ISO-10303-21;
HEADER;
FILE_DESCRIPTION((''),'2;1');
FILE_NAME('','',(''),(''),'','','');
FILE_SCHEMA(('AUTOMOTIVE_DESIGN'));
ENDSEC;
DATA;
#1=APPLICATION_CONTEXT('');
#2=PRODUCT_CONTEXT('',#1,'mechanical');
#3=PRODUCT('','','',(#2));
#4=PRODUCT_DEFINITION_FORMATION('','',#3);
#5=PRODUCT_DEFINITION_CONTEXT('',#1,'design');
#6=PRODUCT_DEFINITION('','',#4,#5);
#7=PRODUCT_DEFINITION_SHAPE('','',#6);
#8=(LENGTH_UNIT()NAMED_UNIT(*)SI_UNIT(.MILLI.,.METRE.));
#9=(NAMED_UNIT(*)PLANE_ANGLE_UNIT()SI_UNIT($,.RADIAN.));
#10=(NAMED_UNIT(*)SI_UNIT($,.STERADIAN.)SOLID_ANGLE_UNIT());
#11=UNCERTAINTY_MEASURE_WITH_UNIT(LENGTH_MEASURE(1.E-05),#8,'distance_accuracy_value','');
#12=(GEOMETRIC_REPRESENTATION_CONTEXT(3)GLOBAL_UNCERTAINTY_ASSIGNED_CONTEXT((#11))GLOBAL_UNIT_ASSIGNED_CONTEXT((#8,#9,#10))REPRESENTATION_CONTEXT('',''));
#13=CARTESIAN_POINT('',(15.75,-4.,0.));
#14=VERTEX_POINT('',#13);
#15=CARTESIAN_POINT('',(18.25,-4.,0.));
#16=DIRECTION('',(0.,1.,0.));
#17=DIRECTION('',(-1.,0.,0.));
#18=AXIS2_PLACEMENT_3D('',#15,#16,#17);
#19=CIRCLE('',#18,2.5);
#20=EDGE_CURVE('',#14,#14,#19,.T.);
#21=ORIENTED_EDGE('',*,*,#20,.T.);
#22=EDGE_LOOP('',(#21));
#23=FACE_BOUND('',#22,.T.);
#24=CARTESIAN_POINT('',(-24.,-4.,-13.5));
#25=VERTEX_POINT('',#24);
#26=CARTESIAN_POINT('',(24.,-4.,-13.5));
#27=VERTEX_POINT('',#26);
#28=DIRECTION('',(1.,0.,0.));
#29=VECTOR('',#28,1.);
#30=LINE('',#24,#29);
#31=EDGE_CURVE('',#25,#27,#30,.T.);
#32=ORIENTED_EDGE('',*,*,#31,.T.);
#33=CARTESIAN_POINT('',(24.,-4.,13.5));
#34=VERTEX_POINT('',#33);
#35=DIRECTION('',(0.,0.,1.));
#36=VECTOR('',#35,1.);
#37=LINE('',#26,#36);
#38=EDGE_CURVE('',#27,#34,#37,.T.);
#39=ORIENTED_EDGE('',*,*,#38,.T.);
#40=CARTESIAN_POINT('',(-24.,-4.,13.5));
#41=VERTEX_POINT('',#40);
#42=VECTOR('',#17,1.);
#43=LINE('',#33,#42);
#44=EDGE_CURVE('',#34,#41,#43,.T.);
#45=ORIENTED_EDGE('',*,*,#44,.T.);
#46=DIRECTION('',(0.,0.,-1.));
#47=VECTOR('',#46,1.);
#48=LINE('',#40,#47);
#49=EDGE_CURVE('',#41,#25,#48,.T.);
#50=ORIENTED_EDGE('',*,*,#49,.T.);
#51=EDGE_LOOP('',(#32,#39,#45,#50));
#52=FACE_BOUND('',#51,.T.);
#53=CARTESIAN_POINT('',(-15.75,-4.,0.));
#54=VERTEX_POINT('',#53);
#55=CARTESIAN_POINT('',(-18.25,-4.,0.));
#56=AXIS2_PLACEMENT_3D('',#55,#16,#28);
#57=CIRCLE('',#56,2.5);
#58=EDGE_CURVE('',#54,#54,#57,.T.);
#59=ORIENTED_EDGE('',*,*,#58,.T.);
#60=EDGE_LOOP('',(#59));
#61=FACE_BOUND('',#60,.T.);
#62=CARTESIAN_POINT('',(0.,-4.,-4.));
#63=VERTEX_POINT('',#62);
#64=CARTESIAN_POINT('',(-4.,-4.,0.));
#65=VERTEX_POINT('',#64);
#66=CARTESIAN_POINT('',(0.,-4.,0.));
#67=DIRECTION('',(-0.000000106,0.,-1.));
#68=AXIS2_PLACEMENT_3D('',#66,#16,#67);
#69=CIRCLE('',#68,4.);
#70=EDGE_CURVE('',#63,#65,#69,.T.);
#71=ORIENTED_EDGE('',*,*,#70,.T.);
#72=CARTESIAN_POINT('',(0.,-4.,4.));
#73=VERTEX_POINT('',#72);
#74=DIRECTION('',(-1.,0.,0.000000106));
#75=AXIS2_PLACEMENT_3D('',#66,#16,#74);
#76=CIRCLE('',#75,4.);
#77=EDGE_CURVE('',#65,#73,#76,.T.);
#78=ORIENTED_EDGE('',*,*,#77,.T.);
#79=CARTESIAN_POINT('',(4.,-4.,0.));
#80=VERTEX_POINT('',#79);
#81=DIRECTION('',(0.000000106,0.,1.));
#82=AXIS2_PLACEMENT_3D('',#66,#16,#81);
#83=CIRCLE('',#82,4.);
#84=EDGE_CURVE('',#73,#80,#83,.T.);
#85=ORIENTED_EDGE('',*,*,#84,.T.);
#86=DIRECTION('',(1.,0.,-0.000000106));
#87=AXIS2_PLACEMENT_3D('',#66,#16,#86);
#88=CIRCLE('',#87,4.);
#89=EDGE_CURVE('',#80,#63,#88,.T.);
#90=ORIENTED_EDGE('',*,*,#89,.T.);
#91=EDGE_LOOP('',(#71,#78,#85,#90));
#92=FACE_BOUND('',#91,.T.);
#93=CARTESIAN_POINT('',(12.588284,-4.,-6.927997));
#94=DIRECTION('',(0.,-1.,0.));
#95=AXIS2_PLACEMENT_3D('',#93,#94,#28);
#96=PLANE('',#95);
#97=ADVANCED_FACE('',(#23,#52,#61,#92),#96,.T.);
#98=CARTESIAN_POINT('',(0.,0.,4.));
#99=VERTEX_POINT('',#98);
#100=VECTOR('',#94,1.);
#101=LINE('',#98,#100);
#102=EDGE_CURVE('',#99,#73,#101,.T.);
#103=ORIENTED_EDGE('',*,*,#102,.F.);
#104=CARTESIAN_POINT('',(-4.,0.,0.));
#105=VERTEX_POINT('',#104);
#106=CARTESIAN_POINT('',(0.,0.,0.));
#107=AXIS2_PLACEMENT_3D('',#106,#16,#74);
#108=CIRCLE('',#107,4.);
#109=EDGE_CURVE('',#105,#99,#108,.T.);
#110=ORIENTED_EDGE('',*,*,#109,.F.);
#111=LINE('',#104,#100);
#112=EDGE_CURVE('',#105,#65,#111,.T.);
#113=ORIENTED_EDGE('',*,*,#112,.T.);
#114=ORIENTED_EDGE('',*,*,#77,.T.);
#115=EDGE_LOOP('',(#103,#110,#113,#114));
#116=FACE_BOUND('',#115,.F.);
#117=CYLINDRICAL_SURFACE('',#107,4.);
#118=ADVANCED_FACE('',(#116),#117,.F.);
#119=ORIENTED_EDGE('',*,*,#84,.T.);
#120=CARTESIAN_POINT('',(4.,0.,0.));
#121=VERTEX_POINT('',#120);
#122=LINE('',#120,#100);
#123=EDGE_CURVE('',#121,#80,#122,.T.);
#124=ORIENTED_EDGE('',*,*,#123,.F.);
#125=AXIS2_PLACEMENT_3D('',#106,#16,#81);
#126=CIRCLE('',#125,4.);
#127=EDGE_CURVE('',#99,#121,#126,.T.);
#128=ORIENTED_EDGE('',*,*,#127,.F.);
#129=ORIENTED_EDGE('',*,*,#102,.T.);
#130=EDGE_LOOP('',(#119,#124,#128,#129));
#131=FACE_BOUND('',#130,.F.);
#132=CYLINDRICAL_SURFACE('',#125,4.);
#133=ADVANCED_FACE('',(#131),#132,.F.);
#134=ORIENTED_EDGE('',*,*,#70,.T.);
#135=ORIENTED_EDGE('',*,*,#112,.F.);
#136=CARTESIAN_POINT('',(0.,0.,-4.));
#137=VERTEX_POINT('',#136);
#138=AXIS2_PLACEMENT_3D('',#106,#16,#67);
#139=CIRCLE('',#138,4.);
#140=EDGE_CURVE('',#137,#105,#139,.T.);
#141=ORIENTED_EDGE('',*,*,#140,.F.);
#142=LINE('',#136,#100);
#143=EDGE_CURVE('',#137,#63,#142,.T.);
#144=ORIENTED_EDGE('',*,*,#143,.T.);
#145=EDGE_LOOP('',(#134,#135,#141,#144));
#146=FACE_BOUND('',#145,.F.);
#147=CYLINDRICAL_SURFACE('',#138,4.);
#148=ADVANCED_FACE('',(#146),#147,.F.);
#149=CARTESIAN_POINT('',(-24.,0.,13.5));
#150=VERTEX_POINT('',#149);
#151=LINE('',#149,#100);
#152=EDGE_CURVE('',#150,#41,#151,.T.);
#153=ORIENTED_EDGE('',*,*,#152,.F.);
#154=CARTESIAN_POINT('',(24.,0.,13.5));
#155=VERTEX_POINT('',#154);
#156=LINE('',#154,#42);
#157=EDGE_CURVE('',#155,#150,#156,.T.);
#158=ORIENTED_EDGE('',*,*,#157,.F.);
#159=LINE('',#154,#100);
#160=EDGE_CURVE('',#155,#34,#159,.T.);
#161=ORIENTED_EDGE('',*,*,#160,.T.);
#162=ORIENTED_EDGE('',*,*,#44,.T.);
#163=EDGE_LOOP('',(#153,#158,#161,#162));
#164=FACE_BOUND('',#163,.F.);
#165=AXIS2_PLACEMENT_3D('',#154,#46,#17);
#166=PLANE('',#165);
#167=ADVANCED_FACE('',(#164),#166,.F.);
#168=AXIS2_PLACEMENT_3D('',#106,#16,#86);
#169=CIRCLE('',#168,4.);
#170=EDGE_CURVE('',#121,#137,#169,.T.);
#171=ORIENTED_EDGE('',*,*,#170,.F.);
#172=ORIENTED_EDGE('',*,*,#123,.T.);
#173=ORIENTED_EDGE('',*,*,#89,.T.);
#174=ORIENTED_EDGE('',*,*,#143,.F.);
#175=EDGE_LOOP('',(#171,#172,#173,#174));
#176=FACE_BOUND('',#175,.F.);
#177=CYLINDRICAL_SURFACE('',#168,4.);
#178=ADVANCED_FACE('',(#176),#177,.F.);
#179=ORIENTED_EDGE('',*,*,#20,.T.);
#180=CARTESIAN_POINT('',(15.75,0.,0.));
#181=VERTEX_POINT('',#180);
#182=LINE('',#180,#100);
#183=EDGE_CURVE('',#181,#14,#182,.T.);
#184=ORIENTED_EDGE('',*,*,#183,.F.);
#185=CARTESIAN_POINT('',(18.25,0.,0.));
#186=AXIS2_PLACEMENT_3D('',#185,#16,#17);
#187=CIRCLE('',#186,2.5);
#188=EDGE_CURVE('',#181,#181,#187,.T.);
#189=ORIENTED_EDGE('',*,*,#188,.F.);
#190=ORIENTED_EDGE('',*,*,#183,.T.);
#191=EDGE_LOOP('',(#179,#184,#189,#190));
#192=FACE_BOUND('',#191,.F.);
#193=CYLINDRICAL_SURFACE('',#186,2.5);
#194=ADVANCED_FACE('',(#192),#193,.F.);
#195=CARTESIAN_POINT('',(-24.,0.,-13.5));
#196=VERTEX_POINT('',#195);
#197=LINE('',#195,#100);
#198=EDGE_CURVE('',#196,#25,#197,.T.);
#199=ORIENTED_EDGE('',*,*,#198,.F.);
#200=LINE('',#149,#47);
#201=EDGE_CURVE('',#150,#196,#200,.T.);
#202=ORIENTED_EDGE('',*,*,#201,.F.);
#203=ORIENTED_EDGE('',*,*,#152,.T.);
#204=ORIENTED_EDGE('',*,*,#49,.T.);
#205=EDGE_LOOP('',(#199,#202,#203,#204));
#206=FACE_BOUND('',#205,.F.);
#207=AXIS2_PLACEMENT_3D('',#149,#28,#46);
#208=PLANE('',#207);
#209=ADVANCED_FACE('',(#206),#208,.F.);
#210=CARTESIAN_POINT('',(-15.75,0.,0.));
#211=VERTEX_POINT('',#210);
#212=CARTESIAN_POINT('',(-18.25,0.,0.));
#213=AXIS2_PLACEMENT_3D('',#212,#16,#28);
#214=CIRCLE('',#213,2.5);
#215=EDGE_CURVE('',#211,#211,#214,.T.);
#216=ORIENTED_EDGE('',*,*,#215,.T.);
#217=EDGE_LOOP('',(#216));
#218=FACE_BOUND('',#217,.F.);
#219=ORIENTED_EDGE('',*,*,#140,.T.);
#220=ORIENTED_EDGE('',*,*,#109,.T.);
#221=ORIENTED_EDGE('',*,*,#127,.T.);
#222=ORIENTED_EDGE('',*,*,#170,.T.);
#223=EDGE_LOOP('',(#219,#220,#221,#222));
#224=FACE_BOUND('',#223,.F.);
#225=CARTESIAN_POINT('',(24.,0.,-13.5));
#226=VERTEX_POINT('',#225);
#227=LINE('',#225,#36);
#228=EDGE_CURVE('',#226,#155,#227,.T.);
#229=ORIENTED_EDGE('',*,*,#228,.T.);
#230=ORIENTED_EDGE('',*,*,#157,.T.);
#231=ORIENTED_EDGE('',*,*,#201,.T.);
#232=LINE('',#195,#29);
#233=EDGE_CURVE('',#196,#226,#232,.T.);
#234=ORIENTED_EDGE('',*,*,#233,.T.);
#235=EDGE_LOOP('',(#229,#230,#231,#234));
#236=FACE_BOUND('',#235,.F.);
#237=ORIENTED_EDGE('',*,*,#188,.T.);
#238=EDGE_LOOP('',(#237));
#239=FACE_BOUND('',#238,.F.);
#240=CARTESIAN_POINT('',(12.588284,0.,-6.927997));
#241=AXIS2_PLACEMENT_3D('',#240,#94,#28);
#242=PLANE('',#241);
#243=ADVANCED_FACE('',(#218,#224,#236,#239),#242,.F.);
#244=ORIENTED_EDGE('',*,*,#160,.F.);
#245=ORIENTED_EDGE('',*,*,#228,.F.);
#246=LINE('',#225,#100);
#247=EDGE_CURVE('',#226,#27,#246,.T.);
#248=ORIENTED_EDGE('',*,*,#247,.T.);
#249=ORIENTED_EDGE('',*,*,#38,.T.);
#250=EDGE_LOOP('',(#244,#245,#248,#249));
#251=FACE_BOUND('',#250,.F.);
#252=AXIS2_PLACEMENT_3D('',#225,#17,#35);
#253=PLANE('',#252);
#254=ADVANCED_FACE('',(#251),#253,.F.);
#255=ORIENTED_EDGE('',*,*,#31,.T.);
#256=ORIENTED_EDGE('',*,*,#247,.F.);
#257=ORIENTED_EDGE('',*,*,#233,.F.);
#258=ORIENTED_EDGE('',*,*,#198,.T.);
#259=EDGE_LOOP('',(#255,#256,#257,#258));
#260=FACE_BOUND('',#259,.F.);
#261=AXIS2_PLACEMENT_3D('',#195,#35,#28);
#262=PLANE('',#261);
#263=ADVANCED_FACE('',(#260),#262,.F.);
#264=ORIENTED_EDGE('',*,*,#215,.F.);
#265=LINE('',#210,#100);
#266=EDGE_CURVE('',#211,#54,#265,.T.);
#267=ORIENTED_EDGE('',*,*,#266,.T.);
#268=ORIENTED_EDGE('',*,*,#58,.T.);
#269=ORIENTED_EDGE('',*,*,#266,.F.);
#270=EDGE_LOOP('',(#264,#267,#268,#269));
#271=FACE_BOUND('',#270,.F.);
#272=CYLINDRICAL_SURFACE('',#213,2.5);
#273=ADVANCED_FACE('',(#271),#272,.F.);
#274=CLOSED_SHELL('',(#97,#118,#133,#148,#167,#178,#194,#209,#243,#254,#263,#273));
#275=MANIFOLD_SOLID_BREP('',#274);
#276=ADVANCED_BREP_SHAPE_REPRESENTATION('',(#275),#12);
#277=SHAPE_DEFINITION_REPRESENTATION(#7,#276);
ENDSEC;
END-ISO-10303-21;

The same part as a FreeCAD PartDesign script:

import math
import FreeCAD as App
import Part
import Sketcher

V = App.Vector


def add_polygon(sketch, points):
    """Adds a closed chain of lines whose ends are joined by coincident constraints."""
    first, n = sketch.GeometryCount, len(points)
    for a, b in zip(points, points[1:] + points[:1]):
        sketch.addGeometry(Part.LineSegment(App.Vector(*a, 0), App.Vector(*b, 0)), False)
    for i in range(n):
        sketch.addConstraint(Sketcher.Constraint("Coincident", first + i, 2, first + (i + 1) % n, 1))

doc = App.newDocument("Part")
body = doc.addObject("PartDesign::Body", "Body")

# Sketch on XZ plane
sketch1 = body.newObject("Sketcher::SketchObject", "Sketch")
sketch1.AttachmentSupport = (doc.getObject("XZ_Plane"), [""])
sketch1.MapMode = "FlatFace"
add_polygon(sketch1, [(24, -13.5), (24, 13.5), (-24, 13.5), (-24, -13.5)])  # lines 0-3
sketch1.addGeometry(Part.ArcOfCircle(Part.Circle(V(0, 0, 0), V(0, 0, 1), 4), math.radians(-89.999994), math.radians(-0.000006)), False)  # 4
sketch1.addGeometry(Part.ArcOfCircle(Part.Circle(V(0, 0, 0), V(0, 0, 1), 4), math.radians(-179.999994), math.radians(-90.000006)), False)  # 5
sketch1.addGeometry(Part.ArcOfCircle(Part.Circle(V(0, 0, 0), V(0, 0, 1), 4), math.radians(90.000006), math.radians(179.999994)), False)  # 6
sketch1.addGeometry(Part.ArcOfCircle(Part.Circle(V(0, 0, 0), V(0, 0, 1), 4), math.radians(0.000006), math.radians(89.999994)), False)  # 7
sketch1.addGeometry(Part.Circle(V(-18.25, 0, 0), V(0, 0, 1), 2.5), False)  # 8
sketch1.addGeometry(Part.Circle(V(18.25, 0, 0), V(0, 0, 1), 2.5), False)  # 9
sketch1.addConstraint([
    Sketcher.Constraint("Tangent", 4, 1, 5, 2),
    Sketcher.Constraint("Tangent", 5, 1, 6, 2),
    Sketcher.Constraint("Tangent", 6, 1, 7, 2),
    Sketcher.Constraint("Tangent", 7, 1, 4, 2),
    Sketcher.Constraint("Vertical", 0),
    Sketcher.Constraint("Horizontal", 1),
    Sketcher.Constraint("Vertical", 2),
    Sketcher.Constraint("Horizontal", 3),
    Sketcher.Constraint("Coincident", 4, 3, -1, 1),
    Sketcher.Constraint("Equal", 4, 5),
    Sketcher.Constraint("Equal", 8, 9),
    Sketcher.Constraint("Symmetric", 8, 3, 9, 3, -1, 1),
    Sketcher.Constraint("Symmetric", 0, 2, 2, 2, -1, 1),
    Sketcher.Constraint("PointOnObject", 8, 3, -1),
    Sketcher.Constraint("PointOnObject", 4, 1, -2),
    Sketcher.Constraint("PointOnObject", 5, 1, -1),
    Sketcher.Constraint("PointOnObject", 6, 1, -2),
    Sketcher.Constraint("PointOnObject", 7, 1, -1),
    Sketcher.Constraint("Diameter", 8, 5.0),
    Sketcher.Constraint("Radius", 4, 4.0),
    Sketcher.Constraint("DistanceX", 1, 2, 1, 1, 48.0),
    Sketcher.Constraint("DistanceY", 0, 1, 0, 2, 27.0),
    Sketcher.Constraint("DistanceX", 8, 3, 9, 3, 36.5),
])
pad1 = body.newObject("PartDesign::Pad", "Pad")
pad1.Profile = sketch1
pad1.Length = 4

doc.recompute()
